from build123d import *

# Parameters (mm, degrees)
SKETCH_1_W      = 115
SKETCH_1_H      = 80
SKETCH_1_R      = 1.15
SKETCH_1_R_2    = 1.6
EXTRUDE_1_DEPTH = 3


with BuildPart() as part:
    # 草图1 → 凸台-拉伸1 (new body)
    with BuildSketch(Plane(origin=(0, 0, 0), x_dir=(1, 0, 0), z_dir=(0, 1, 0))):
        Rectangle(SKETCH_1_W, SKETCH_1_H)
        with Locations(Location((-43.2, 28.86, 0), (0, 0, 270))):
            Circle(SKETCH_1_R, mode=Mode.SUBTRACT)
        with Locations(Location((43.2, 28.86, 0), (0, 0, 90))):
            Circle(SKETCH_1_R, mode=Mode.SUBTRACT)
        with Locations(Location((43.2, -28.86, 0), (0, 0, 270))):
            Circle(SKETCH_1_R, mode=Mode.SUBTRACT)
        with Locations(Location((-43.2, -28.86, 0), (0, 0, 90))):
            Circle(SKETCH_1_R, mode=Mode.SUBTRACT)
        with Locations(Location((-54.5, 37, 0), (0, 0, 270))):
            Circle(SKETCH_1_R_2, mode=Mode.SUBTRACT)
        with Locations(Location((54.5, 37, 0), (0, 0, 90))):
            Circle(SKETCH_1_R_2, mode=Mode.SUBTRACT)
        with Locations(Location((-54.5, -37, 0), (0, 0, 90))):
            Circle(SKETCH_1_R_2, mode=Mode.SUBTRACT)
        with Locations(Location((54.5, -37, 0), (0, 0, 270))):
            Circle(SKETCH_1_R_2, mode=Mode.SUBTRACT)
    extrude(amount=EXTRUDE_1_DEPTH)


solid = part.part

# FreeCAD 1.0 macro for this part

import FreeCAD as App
import Part
import Sketcher

V = App.Vector

doc = App.newDocument("Part")
body = doc.addObject("PartDesign::Body", "Body")

# Sketch on XZ plane
sketch1 = doc.addObject("Sketcher::SketchObject", "Sketch")
body.addObject(sketch1)
sketch1.AttachmentSupport = (doc.XZ_Plane, [""])
sketch1.MapMode = "FlatFace"
sketch1.addGeometry([
    Part.LineSegment(V(-57.5, -40, 0), V(-57.5, 40, 0)),  # 0
    Part.LineSegment(V(-57.5, 40, 0), V(57.5, 40, 0)),  # 1
    Part.LineSegment(V(57.5, 40, 0), V(57.5, -40, 0)),  # 2
    Part.LineSegment(V(57.5, -40, 0), V(-57.5, -40, 0)),  # 3
    Part.Circle(V(-54.5, 37, 0), V(0, 0, 1), 1.6),  # 4
    Part.Circle(V(-43.2, 28.9, 0), V(0, 0, 1), 1.1),  # 5
    Part.Circle(V(54.5, 37, 0), V(0, 0, 1), 1.6),  # 6
    Part.Circle(V(43.2, 28.9, 0), V(0, 0, 1), 1.1),  # 7
    Part.Circle(V(-43.2, -28.9, 0), V(0, 0, 1), 1.1),  # 8
    Part.Circle(V(-54.5, -37, 0), V(0, 0, 1), 1.6),  # 9
    Part.Circle(V(43.2, -28.9, 0), V(0, 0, 1), 1.1),  # 10
    Part.Circle(V(54.5, -37, 0), V(0, 0, 1), 1.6),  # 11
], False)
sketch1.addConstraint([
    Sketcher.Constraint("Coincident", 0, 2, 1, 1),
    Sketcher.Constraint("Coincident", 1, 2, 2, 1),
    Sketcher.Constraint("Coincident", 2, 2, 3, 1),
    Sketcher.Constraint("Coincident", 3, 2, 0, 1),
    Sketcher.Constraint("Vertical", 0),
    Sketcher.Constraint("Horizontal", 1),
    Sketcher.Constraint("Vertical", 2),
    Sketcher.Constraint("Horizontal", 3),
    Sketcher.Constraint("Equal", 4, 6),
    Sketcher.Constraint("Equal", 5, 7),
    Sketcher.Constraint("Equal", 7, 8),
    Sketcher.Constraint("Equal", 6, 9),
    Sketcher.Constraint("Equal", 8, 10),
    Sketcher.Constraint("Equal", 9, 11),
    Sketcher.Constraint("Symmetric", 7, 3, 8, 3, -1, 1),
    Sketcher.Constraint("Symmetric", 6, 3, 9, 3, -1, 1),
    Sketcher.Constraint("Symmetric", 5, 3, 10, 3, -1, 1),
    Sketcher.Constraint("Symmetric", 4, 3, 11, 3, -1, 1),
    Sketcher.Constraint("Symmetric", 0, 2, 2, 2, -1, 1),
    Sketcher.Constraint("Symmetric", 4, 3, 6, 3, -2),
    Sketcher.Constraint("Symmetric", 5, 3, 7, 3, -2),
    Sketcher.Constraint("Diameter", 4, 3.2),
    Sketcher.Constraint("Diameter", 5, 2.3),
    Sketcher.Constraint("DistanceX", 1, 1, 1, 2, 115.0),
    Sketcher.Constraint("DistanceY", 0, 1, 0, 2, 80.0),
    Sketcher.Constraint("DistanceY", -1, 1, 4, 3, 37.0),
    Sketcher.Constraint("DistanceX", 4, 3, 6, 3, 109.0),
    Sketcher.Constraint("DistanceX", 5, 3, -1, 1, 43.2),
    Sketcher.Constraint("DistanceY", -1, 1, 5, 3, 28.86),
])
pad1 = doc.addObject("PartDesign::Pad", "Pad")
body.addObject(pad1)
pad1.Profile = sketch1
pad1.Length = 3
pad1.Reversed = True

doc.recompute()
